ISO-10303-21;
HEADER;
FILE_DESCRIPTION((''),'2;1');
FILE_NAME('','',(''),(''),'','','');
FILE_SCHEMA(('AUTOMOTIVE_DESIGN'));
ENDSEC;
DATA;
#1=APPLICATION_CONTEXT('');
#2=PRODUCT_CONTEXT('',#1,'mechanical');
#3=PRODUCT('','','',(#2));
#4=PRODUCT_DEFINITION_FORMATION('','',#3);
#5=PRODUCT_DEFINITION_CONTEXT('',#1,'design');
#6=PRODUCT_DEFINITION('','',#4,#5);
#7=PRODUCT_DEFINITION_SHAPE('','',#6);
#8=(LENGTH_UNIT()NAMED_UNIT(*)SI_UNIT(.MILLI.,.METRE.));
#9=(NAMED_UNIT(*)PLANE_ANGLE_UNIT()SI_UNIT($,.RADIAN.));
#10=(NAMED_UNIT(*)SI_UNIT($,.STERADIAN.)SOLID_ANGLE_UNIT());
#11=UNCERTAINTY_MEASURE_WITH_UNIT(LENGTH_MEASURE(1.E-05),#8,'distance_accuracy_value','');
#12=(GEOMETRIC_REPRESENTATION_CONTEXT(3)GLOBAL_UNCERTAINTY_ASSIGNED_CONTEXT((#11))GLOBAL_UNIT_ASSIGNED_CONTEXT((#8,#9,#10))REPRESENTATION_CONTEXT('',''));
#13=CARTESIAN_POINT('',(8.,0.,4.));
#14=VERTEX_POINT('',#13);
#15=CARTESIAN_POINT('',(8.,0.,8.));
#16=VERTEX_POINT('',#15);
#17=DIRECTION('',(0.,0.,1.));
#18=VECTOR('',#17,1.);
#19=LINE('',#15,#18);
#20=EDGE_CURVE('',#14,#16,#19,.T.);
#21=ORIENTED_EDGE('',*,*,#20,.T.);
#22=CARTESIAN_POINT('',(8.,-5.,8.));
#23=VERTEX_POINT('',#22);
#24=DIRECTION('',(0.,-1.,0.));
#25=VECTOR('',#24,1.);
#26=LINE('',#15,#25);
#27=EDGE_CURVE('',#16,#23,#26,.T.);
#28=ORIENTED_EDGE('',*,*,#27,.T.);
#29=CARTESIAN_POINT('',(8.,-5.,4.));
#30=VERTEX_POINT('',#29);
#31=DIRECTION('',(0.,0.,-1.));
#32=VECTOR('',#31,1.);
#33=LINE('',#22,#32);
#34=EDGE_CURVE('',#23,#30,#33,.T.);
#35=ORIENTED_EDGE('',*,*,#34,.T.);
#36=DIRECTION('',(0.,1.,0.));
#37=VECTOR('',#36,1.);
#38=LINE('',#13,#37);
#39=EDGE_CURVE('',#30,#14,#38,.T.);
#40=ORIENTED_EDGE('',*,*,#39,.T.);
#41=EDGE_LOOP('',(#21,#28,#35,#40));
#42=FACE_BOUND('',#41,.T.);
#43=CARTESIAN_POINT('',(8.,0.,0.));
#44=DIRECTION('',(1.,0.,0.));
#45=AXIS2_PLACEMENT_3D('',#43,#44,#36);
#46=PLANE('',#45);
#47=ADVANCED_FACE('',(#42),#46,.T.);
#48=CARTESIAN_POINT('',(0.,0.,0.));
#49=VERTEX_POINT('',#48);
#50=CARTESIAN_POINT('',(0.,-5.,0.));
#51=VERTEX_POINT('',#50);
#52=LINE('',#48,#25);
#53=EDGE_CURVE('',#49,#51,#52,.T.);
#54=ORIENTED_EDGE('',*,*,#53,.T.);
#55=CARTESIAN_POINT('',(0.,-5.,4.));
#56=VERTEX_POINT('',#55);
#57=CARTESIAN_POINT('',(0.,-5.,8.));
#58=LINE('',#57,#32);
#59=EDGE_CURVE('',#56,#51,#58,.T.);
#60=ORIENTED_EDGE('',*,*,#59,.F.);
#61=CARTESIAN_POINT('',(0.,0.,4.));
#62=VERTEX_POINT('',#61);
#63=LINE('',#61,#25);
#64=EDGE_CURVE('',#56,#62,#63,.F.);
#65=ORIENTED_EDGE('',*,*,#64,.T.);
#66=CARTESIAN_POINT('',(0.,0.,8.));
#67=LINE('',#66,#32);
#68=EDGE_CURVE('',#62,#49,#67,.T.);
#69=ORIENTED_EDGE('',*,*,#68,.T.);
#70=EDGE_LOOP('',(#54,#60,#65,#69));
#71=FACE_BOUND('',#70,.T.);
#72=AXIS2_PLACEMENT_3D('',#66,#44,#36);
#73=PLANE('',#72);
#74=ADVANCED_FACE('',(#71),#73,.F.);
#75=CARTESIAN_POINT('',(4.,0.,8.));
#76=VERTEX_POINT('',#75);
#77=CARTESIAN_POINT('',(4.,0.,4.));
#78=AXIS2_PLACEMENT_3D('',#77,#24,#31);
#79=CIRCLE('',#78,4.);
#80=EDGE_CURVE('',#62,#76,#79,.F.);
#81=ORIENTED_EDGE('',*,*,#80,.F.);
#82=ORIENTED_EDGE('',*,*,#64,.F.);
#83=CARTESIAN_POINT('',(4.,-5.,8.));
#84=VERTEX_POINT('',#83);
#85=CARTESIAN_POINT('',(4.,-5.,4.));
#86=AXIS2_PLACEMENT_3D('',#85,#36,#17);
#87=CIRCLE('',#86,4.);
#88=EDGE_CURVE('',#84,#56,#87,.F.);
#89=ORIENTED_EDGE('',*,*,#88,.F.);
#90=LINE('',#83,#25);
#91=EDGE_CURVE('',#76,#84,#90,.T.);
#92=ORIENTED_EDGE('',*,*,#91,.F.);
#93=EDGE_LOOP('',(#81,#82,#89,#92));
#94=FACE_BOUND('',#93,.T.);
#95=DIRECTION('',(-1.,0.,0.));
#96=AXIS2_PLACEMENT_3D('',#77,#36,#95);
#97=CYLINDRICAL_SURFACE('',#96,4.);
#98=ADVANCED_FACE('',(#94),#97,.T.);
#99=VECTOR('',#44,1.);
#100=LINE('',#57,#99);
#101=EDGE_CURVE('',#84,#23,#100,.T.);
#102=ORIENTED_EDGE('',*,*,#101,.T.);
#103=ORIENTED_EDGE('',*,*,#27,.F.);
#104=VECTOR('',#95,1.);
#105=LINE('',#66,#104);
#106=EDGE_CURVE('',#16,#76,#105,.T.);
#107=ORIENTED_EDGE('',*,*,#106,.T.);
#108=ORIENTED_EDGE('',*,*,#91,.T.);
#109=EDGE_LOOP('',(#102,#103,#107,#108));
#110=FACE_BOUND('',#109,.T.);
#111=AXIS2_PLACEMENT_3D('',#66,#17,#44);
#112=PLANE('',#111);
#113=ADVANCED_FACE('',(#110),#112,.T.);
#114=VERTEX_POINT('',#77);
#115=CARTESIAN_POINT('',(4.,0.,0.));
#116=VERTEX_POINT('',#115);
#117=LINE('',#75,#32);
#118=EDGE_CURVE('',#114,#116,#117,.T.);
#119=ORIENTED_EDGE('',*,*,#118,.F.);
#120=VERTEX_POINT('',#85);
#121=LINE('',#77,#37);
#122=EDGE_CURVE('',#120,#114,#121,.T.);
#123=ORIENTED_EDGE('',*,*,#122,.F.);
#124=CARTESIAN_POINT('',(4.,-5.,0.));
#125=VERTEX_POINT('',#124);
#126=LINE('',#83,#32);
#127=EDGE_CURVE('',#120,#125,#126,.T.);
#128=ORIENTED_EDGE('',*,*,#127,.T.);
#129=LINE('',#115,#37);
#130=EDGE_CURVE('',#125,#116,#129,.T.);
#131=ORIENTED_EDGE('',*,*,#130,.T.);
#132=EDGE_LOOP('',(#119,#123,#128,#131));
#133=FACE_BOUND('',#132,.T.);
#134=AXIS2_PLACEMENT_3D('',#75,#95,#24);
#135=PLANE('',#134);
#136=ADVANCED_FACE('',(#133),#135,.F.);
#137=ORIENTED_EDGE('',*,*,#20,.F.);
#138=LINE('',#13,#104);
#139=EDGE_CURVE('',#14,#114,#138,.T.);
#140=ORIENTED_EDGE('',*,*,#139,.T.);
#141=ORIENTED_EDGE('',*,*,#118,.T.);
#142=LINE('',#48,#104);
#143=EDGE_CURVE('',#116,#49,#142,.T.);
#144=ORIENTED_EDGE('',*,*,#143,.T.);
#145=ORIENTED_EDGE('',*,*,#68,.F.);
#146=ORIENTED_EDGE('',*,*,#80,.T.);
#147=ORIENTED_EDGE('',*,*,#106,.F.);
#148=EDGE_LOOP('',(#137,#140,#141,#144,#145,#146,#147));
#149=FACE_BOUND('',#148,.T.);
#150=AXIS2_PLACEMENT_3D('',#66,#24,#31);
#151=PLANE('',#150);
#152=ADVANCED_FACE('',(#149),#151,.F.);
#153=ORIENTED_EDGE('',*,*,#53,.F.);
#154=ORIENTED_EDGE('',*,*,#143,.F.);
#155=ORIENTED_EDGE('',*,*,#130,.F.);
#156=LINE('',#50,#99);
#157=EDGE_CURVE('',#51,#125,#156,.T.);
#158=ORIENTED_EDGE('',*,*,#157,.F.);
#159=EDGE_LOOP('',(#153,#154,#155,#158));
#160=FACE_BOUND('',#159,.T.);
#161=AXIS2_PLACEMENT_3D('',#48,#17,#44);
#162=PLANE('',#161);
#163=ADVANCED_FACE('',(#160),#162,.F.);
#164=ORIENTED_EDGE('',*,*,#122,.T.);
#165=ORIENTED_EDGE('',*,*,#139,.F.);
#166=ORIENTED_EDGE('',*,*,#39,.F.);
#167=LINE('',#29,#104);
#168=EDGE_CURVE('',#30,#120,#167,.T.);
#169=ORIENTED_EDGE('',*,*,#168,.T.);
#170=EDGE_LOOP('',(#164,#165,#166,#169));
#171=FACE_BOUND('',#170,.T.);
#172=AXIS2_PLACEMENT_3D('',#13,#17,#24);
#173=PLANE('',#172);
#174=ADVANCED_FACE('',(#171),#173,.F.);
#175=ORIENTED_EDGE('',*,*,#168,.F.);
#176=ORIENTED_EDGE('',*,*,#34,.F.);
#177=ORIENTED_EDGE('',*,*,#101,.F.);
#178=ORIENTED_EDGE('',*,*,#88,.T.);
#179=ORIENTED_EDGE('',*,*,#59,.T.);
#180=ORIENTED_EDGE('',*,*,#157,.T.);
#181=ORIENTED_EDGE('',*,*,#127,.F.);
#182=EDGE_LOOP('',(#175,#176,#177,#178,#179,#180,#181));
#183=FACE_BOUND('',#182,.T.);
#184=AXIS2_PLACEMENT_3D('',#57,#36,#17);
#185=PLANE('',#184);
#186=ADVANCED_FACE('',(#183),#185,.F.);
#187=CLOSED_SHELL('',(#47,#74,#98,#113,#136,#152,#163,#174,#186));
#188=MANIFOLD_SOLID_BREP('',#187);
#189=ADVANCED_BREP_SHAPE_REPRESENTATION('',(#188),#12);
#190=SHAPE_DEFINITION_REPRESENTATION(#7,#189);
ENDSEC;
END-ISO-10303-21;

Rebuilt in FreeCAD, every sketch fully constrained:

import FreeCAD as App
import Part
import Sketcher
Q = App.Units.Quantity


def edges_at(feature, points):
    """Names of the edges that pass closest to the given points."""
    edges = feature.Shape.Edges
    near = lambda p: min(range(len(edges)), key=lambda i: edges[i].distToShape(Part.Vertex(*p))[0])
    return sorted({f"Edge{near(p) + 1}" for p in points})


def add_polygon(sketch, points):
    """Adds a closed chain of lines whose ends are joined by coincident constraints."""
    first, n = sketch.GeometryCount, len(points)
    for a, b in zip(points, points[1:] + points[:1]):
        sketch.addGeometry(Part.LineSegment(App.Vector(*a, 0), App.Vector(*b, 0)), False)
    for i in range(n):
        sketch.addConstraint(Sketcher.Constraint("Coincident", first + i, 2, first + (i + 1) % n, 1))

doc = App.newDocument("Part")
body = doc.addObject("PartDesign::Body", "Body")

# Sketch on XY plane
sketch1 = body.newObject("Sketcher::SketchObject", "Sketch")
sketch1.AttachmentSupport = (doc.getObject("XY_Plane"), [""])
sketch1.MapMode = "FlatFace"
add_polygon(sketch1, [(0, 0), (0, -5), (4, -5), (4, 0)])  # lines 0-3
sketch1.addConstraint(Sketcher.Constraint("Vertical", 0))
sketch1.addConstraint(Sketcher.Constraint("Horizontal", 1))
sketch1.addConstraint(Sketcher.Constraint("Vertical", 2))
sketch1.addConstraint(Sketcher.Constraint("Horizontal", 3))
sketch1.addConstraint(Sketcher.Constraint("Coincident", 3, 2, -1, 1))
sketch1.addConstraint(Sketcher.Constraint("DistanceX", 1, 1, 1, 2, Q("4 mm")))
sketch1.addConstraint(Sketcher.Constraint("DistanceY", 0, 2, 0, 1, Q("5 mm")))
pad1 = body.newObject("PartDesign::Pad", "Pad")
pad1.Profile = sketch1
pad1.Length = 8

# Sketch on YZ plane
sketch2 = body.newObject("Sketcher::SketchObject", "Sketch001")
sketch2.AttachmentSupport = (doc.getObject("YZ_Plane"), [""])
sketch2.MapMode = "FlatFace"
sketch2.AttachmentOffset = App.Placement(App.Vector(0, 0, 4), App.Rotation())
add_polygon(sketch2, [(0, 8), (-5, 8), (-5, 4), (0, 4)])  # lines 0-3
sketch2.addConstraint(Sketcher.Constraint("Horizontal", 0))
sketch2.addConstraint(Sketcher.Constraint("Vertical", 1))
sketch2.addConstraint(Sketcher.Constraint("Horizontal", 2))
sketch2.addConstraint(Sketcher.Constraint("Vertical", 3))
sketch2.addConstraint(Sketcher.Constraint("PointOnObject", 2, 2, -2))
sketch2.addConstraint(Sketcher.Constraint("DistanceX", 0, 2, 0, 1, Q("5 mm")))
sketch2.addConstraint(Sketcher.Constraint("DistanceY", 1, 2, 1, 1, Q("4 mm")))
sketch2.addConstraint(Sketcher.Constraint("DistanceY", -1, 1, 0, 2, Q("8 mm")))
pad2 = body.newObject("PartDesign::Pad", "Pad001")
pad2.Profile = sketch2
pad2.Length = 4
doc.recompute()

fillet = body.newObject("PartDesign::Fillet", "Fillet")
fillet.Base = (pad2, edges_at(pad2, [(0, -2.5, 8)]))
fillet.Radius = 4

doc.recompute()
